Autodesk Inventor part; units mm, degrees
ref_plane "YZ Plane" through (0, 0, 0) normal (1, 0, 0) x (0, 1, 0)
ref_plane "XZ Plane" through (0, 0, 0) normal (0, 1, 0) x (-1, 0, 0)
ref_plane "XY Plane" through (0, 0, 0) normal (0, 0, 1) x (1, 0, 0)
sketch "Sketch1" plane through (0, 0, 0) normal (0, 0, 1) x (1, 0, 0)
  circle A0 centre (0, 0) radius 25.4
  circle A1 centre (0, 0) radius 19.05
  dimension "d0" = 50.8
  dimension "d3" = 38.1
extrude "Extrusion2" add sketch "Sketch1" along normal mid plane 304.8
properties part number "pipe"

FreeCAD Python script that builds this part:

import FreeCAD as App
import Part
import Sketcher
Q = App.Units.Quantity

doc = App.newDocument("Part")
params = doc.addObject("Spreadsheet::Sheet", "Params")
for row, (alias, value) in enumerate([
    ("sketch1_diameter", "2 in"),
    ("sketch1_diameter2", "1.5 in"),
    ("pad1_length", "12 in"),
], start=1):
    params.set(f"A{row}", alias)
    params.set(f"B{row}", "=" + value)
    params.setAlias(f"B{row}", alias)

body = doc.addObject("PartDesign::Body", "Body")

# Sketch on XY plane
sketch1 = body.newObject("Sketcher::SketchObject", "Sketch")
sketch1.AttachmentSupport = (doc.getObject("XY_Plane"), [""])
sketch1.MapMode = "FlatFace"
sketch1.addGeometry(Part.Circle(App.Vector(0, 0, 0), App.Vector(0, 0, 1), 25), False)
sketch1.addGeometry(Part.Circle(App.Vector(0, 0, 0), App.Vector(0, 0, 1), 19), False)
sketch1.addConstraint(Sketcher.Constraint("Coincident", 0, 3, -1, 1))
sketch1.addConstraint(Sketcher.Constraint("Coincident", 1, 3, -1, 1))
sketch1.addConstraint(Sketcher.Constraint("Diameter", 0, Q("2 in")))
sketch1.addConstraint(Sketcher.Constraint("Diameter", 1, Q("1.5 in")))
sketch1.setExpression("Constraints[2]", "Params.sketch1_diameter")
sketch1.setExpression("Constraints[3]", "Params.sketch1_diameter2")
pad1 = body.newObject("PartDesign::Pad", "Pad")
pad1.Profile = sketch1
pad1.setExpression("Length", "Params.pad1_length")
pad1.Midplane = True

doc.recompute()
